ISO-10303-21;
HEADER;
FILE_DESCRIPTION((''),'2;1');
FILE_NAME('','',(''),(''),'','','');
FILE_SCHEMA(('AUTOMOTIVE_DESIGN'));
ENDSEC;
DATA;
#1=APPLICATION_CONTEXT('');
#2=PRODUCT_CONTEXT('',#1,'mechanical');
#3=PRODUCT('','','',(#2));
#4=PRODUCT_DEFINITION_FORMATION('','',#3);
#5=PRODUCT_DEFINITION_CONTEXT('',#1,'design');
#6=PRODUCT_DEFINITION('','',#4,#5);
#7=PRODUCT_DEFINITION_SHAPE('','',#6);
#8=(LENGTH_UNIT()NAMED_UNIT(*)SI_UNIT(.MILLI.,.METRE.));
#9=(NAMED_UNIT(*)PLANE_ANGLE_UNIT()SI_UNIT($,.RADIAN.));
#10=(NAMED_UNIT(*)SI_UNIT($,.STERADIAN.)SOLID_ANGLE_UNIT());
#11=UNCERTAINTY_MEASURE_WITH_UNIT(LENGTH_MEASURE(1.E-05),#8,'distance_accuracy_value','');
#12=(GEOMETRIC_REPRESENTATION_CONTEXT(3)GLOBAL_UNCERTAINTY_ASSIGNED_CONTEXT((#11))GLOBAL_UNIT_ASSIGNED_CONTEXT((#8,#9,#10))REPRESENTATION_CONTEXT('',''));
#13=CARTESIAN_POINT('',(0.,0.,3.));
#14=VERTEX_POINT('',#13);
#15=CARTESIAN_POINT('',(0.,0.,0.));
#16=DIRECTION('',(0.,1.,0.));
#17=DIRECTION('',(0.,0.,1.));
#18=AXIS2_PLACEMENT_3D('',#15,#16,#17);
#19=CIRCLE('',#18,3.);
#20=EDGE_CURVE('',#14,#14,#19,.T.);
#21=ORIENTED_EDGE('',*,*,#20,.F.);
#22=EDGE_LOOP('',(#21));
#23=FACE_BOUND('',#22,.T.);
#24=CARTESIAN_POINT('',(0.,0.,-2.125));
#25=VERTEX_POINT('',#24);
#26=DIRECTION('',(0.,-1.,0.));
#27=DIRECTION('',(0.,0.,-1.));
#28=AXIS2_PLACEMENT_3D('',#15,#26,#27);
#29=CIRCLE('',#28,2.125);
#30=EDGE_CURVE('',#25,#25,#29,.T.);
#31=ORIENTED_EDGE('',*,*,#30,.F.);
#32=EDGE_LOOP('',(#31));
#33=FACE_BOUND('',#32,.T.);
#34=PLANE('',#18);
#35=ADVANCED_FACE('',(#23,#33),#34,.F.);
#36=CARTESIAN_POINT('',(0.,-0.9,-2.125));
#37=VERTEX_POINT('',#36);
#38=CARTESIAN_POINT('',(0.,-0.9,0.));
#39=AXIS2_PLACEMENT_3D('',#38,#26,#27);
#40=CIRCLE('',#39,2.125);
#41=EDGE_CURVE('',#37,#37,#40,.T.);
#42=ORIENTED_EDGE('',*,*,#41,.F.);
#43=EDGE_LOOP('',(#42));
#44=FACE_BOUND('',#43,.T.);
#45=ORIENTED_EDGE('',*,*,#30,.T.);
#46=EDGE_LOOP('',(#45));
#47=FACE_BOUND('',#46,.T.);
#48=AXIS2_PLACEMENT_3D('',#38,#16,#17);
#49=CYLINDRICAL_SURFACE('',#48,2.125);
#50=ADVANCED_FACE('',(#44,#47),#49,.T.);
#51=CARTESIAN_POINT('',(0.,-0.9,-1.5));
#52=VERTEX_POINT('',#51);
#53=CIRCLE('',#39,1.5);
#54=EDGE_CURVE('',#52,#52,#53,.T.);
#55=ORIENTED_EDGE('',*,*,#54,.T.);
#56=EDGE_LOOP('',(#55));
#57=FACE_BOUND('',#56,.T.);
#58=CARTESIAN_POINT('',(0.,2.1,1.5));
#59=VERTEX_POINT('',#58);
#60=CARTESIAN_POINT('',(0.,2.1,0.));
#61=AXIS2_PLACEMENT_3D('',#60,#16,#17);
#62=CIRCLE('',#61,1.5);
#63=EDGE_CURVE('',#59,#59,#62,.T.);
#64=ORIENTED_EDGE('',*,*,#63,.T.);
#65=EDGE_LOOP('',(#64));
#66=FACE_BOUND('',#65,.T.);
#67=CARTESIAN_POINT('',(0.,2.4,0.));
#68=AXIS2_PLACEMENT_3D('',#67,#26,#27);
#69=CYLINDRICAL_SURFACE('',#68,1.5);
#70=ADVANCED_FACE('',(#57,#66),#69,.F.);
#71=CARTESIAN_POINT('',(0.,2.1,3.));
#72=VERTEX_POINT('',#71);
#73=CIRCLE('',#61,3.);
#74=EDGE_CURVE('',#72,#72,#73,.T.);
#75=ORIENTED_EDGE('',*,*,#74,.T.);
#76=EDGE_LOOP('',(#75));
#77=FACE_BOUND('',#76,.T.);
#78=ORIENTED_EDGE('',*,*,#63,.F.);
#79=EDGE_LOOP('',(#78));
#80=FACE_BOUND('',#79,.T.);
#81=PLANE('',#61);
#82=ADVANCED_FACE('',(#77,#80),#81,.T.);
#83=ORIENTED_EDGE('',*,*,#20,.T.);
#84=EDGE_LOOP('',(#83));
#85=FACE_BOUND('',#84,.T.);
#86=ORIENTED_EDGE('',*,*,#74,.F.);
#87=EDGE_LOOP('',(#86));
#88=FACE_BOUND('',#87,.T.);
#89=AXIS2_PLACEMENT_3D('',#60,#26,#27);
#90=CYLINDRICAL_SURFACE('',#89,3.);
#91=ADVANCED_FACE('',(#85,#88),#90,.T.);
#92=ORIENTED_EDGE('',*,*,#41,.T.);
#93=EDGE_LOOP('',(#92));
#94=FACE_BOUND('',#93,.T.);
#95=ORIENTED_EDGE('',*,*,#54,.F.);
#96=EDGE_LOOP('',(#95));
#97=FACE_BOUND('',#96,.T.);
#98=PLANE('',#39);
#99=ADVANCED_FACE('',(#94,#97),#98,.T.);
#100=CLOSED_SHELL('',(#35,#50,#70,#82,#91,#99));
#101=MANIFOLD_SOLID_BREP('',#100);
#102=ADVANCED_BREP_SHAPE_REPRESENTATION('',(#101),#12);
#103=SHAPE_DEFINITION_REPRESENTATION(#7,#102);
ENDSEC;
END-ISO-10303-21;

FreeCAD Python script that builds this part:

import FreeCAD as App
import Part
import Sketcher
from FreeCAD import Vector

doc = App.newDocument("Part")
params = doc.addObject("Spreadsheet::Sheet", "Params")
for row, (alias, value) in enumerate([
    ("sketch1_diameter", "6 mm"),
    ("pad1_length", "2.1 mm"),
    ("sketch2_diameter", "4.25 mm"),
    ("pad2_length", "0.9 mm"),
    ("sketch3_diameter", "3 mm"),
    ("pocket1_length", "3.3 mm"),
], start=1):
    params.set(f"A{row}", alias)
    params.set(f"B{row}", "=" + value)
    params.setAlias(f"B{row}", alias)

body = doc.addObject("PartDesign::Body", "Body")

# Sketch on XZ plane
sketch1 = body.newObject("Sketcher::SketchObject", "Sketch")
sketch1.AttachmentSupport = (doc.getObject("XZ_Plane"), [""])
sketch1.MapMode = "FlatFace"
sketch1.addGeometry(Part.Circle(Vector(0, 0, 0), Vector(0, 0, 1), 3), False)
sketch1.addConstraint(Sketcher.Constraint("Coincident", 0, 3, -1, 1))
sketch1.addConstraint(Sketcher.Constraint("Diameter", 0, 6.0))
sketch1.setExpression("Constraints[1]", "Params.sketch1_diameter")
pad1 = body.newObject("PartDesign::Pad", "Pad")
pad1.Profile = sketch1
pad1.setExpression("Length", "Params.pad1_length")
pad1.Reversed = True

# Sketch on XZ plane
sketch2 = body.newObject("Sketcher::SketchObject", "Sketch001")
sketch2.AttachmentSupport = (doc.getObject("XZ_Plane"), [""])
sketch2.MapMode = "FlatFace"
sketch2.addGeometry(Part.Circle(Vector(0, 0, 0), Vector(0, 0, 1), 2.1), False)
sketch2.addConstraint(Sketcher.Constraint("Coincident", 0, 3, -1, 1))
sketch2.addConstraint(Sketcher.Constraint("Diameter", 0, 4.25))
sketch2.setExpression("Constraints[1]", "Params.sketch2_diameter")
pad2 = body.newObject("PartDesign::Pad", "Pad001")
pad2.Profile = sketch2
pad2.setExpression("Length", "Params.pad2_length")

# Sketch on XZ plane
sketch3 = body.newObject("Sketcher::SketchObject", "Sketch002")
sketch3.AttachmentSupport = (doc.getObject("XZ_Plane"), [""])
sketch3.MapMode = "FlatFace"
sketch3.AttachmentOffset = App.Placement(Vector(0, 0, 0.9), App.Rotation())
sketch3.addGeometry(Part.Circle(Vector(0, 0, 0), Vector(0, 0, 1), 1.5), False)
sketch3.addConstraint(Sketcher.Constraint("Coincident", 0, 3, -1, 1))
sketch3.addConstraint(Sketcher.Constraint("Diameter", 0, 3.0))
sketch3.setExpression("Constraints[1]", "Params.sketch3_diameter")
pocket1 = body.newObject("PartDesign::Pocket", "Pocket")
pocket1.Profile = sketch3
pocket1.setExpression("Length", "Params.pocket1_length")

doc.recompute()
